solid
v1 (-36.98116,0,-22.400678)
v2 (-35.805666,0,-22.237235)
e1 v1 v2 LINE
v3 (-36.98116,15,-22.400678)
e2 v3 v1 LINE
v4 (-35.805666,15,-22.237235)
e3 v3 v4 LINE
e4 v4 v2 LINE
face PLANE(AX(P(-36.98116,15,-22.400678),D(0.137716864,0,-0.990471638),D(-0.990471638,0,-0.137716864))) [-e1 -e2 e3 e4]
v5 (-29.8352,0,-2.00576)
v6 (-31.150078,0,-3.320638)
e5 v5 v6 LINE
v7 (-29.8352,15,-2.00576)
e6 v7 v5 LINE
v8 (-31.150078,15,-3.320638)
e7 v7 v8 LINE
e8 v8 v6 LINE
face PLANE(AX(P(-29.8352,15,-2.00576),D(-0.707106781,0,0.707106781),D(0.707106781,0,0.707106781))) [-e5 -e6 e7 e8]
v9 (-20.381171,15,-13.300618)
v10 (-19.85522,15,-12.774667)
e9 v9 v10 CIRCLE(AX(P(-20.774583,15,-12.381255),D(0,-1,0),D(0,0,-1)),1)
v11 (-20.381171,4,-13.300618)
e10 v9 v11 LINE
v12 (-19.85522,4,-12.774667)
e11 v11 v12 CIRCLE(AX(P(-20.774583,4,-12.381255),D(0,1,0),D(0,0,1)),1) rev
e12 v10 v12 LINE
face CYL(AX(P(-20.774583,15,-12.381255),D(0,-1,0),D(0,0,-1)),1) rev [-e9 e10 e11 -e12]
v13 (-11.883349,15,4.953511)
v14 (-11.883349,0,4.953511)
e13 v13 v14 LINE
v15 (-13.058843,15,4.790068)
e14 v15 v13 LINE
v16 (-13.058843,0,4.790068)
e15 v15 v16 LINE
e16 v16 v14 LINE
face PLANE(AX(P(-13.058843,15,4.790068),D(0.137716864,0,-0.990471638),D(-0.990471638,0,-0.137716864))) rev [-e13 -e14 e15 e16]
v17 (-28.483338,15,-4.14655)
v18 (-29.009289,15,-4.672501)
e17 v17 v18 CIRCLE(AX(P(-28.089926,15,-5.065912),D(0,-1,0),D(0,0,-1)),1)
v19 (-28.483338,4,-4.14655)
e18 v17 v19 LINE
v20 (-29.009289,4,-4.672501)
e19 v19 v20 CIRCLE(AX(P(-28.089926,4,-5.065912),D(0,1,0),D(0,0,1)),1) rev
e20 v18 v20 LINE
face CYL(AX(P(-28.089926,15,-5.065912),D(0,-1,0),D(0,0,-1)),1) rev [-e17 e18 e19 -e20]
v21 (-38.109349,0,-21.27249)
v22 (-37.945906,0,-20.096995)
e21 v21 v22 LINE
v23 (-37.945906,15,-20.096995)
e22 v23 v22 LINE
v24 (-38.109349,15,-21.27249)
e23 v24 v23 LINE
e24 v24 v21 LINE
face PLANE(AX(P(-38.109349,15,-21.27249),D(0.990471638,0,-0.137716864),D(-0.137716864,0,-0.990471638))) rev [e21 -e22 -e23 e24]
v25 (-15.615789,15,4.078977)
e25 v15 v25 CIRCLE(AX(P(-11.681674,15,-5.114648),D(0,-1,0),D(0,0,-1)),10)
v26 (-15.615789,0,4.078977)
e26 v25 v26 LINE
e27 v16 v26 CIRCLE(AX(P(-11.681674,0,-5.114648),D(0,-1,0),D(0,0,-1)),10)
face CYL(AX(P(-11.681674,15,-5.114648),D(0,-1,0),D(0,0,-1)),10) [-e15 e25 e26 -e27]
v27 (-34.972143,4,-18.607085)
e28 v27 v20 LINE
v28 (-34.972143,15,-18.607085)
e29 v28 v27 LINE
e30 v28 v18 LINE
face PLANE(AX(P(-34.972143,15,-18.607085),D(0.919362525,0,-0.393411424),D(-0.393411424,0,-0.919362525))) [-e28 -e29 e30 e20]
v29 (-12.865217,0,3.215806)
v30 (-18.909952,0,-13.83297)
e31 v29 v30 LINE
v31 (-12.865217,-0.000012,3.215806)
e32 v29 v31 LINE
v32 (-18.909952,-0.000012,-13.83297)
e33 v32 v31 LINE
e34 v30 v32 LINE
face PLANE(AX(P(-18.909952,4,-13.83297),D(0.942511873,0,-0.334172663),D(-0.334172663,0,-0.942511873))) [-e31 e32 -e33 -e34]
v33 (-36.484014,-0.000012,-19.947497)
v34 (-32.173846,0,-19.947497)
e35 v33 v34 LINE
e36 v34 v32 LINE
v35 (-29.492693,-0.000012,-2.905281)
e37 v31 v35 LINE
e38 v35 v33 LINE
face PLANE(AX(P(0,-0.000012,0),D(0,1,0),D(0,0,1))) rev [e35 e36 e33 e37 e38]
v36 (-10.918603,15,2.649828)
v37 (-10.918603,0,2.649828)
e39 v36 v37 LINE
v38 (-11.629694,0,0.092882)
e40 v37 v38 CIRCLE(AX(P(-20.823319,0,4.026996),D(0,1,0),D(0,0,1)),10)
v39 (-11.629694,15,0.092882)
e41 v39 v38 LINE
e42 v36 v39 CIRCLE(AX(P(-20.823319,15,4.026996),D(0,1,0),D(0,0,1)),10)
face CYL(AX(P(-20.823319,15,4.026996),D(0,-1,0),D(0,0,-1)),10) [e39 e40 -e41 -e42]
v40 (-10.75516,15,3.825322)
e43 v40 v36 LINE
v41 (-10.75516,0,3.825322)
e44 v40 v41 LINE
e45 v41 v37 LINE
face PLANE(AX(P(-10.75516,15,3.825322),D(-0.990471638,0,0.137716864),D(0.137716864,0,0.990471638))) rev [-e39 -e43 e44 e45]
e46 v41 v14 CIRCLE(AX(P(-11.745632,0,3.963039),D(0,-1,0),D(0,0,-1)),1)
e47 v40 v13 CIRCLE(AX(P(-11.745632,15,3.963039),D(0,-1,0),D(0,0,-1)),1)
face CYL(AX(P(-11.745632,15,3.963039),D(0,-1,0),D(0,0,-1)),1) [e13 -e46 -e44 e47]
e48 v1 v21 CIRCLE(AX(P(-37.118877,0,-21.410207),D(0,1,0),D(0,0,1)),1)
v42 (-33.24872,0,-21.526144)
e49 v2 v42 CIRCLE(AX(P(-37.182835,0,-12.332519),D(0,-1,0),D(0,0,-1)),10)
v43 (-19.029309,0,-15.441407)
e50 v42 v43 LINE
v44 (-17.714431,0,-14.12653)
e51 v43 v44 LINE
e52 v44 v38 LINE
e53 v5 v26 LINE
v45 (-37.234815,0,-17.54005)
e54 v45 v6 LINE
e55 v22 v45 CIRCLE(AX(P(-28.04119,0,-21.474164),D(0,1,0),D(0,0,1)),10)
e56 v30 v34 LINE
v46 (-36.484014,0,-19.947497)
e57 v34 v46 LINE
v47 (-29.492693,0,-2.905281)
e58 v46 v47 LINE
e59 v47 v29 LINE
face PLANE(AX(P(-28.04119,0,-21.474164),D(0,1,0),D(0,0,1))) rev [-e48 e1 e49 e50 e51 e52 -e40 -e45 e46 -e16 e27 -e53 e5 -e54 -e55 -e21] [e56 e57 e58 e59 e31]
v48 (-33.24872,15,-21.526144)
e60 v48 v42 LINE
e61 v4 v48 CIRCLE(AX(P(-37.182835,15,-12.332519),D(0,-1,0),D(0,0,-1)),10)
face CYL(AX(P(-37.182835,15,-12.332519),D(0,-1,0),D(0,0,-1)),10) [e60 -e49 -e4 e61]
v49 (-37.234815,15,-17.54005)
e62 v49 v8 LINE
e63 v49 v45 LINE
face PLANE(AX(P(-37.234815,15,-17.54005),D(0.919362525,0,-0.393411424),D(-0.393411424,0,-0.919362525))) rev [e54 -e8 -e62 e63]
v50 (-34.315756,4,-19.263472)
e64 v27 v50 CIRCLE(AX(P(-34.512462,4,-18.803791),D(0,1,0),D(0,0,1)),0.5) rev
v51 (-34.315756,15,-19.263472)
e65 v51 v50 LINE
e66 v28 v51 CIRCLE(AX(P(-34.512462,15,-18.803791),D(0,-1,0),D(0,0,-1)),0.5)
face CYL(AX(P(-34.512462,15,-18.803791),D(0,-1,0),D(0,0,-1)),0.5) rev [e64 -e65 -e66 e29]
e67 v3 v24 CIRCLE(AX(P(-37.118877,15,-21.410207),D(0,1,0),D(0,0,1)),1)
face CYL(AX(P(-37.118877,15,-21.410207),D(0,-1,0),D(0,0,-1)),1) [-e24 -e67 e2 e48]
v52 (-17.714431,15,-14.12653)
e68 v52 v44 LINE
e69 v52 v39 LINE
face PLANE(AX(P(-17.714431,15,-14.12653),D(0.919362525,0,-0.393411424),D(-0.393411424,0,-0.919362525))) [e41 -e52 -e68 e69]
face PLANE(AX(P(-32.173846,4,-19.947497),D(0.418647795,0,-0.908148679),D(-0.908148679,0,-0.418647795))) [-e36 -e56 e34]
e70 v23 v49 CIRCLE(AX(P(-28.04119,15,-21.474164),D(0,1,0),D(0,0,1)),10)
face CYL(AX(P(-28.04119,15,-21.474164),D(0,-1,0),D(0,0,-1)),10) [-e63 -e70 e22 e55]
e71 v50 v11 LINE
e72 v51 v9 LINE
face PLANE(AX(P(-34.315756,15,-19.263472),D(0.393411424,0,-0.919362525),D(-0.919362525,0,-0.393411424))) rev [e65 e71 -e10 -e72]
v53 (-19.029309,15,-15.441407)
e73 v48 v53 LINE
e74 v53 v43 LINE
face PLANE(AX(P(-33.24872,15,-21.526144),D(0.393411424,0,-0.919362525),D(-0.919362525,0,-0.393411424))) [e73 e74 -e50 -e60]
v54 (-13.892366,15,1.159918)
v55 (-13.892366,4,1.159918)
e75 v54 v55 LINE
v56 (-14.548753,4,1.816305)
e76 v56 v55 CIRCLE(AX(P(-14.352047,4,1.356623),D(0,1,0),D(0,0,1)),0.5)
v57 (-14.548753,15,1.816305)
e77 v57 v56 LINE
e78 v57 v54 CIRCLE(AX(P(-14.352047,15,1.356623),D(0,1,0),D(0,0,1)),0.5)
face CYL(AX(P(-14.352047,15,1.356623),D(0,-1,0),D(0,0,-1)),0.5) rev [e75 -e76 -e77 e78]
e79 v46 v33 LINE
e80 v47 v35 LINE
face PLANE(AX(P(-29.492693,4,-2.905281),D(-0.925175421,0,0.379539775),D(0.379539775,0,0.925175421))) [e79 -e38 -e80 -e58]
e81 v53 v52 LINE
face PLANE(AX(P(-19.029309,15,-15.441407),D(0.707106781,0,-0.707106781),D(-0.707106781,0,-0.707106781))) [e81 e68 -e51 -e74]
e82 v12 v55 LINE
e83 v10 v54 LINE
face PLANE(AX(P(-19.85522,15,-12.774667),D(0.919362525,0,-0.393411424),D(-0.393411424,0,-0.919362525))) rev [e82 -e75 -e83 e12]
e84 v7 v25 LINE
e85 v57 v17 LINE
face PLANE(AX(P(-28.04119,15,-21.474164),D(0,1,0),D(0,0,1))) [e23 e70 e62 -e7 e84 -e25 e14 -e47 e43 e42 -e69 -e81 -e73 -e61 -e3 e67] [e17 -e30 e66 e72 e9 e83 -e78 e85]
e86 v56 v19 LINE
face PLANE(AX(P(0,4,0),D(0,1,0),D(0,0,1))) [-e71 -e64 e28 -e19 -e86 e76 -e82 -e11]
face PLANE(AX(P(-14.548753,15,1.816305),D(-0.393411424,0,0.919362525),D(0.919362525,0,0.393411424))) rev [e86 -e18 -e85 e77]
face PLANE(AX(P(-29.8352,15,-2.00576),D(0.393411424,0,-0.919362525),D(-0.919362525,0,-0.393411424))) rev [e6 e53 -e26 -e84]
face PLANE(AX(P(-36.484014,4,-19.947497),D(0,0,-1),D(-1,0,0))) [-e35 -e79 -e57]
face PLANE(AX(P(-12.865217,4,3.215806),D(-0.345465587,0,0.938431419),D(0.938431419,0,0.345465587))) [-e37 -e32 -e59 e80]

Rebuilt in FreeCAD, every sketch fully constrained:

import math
import FreeCAD as App
import Part
import Sketcher

doc = App.newDocument("Part")
params = doc.addObject("Spreadsheet::Sheet", "Params")
for row, (alias, value) in enumerate([
    ("sketch1_radius", "10 mm"),
    ("sketch1_radius2", "1 mm"),
    ("sketch1_radius3", "10 mm"),
    ("sketch1_radius4", "10 mm"),
    ("sketch1_radius5", "1 mm"),
    ("pad1_length", "15 mm"),
    ("pad2_length", "4.000012 mm"),
], start=1):
    params.set(f"A{row}", alias)
    params.set(f"B{row}", "=" + value)
    params.setAlias(f"B{row}", alias)

body = doc.addObject("PartDesign::Body", "Body")

sketch1 = body.newObject("Sketcher::SketchObject", "Sketch")
sketch1.AttachmentSupport = (doc.getObject("XZ_Plane"), [""])
sketch1.MapMode = "FlatFace"
sketch1.addGeometry(Part.LineSegment(App.Vector(-19.029309, -15.441407, 0), App.Vector(-33.24872, -21.526144, 0)), False)
sketch1.addGeometry(Part.ArcOfCircle(Part.Circle(App.Vector(-37.182835, -12.332519, 0), App.Vector(0, 0, 1), 10), math.radians(-82.084248), math.radians(-66.833065)), False)
sketch1.addGeometry(Part.LineSegment(App.Vector(-35.805666, -22.237235, 0), App.Vector(-36.98116, -22.400678, 0)), False)
sketch1.addGeometry(Part.ArcOfCircle(Part.Circle(App.Vector(-37.118877, -21.410207, 0), App.Vector(0, 0, 1), 1), math.radians(172.084248), math.radians(277.915752)), False)
sketch1.addGeometry(Part.LineSegment(App.Vector(-38.109349, -21.27249, 0), App.Vector(-37.945906, -20.096995, 0)), False)
sketch1.addGeometry(Part.ArcOfCircle(Part.Circle(App.Vector(-28.04119, -21.474164, 0), App.Vector(0, 0, 1), 10), math.radians(156.833065), math.radians(172.084248)), False)
sketch1.addGeometry(Part.LineSegment(App.Vector(-37.234815, -17.54005, 0), App.Vector(-31.150078, -3.320638, 0)), False)
sketch1.addGeometry(Part.LineSegment(App.Vector(-31.150078, -3.320638, 0), App.Vector(-29.8352, -2.00576, 0)), False)
sketch1.addGeometry(Part.LineSegment(App.Vector(-29.8352, -2.00576, 0), App.Vector(-15.615789, 4.078977, 0)), False)
sketch1.addGeometry(Part.ArcOfCircle(Part.Circle(App.Vector(-11.681674, -5.114648, 0), App.Vector(0, 0, 1), 10), math.radians(97.915752), math.radians(113.166935)), False)
sketch1.addGeometry(Part.LineSegment(App.Vector(-13.058843, 4.790068, 0), App.Vector(-11.883349, 4.953511, 0)), False)
sketch1.addGeometry(Part.ArcOfCircle(Part.Circle(App.Vector(-11.745632, 3.963039, 0), App.Vector(0, 0, 1), 1), math.radians(-7.915753), math.radians(97.915753)), False)
sketch1.addGeometry(Part.LineSegment(App.Vector(-10.75516, 3.825322, 0), App.Vector(-10.918603, 2.649828, 0)), False)
sketch1.addGeometry(Part.ArcOfCircle(Part.Circle(App.Vector(-20.823319, 4.026996, 0), App.Vector(0, 0, 1), 10), math.radians(-23.166935), math.radians(-7.915752)), False)
sketch1.addGeometry(Part.LineSegment(App.Vector(-11.629694, 0.092882, 0), App.Vector(-17.714431, -14.12653, 0)), False)
sketch1.addGeometry(Part.LineSegment(App.Vector(-17.714431, -14.12653, 0), App.Vector(-19.029309, -15.441407, 0)), False)
sketch1.addGeometry(Part.ArcOfCircle(Part.Circle(App.Vector(-34.512462, -18.803791, 0), App.Vector(0, 0, 1), 0.5), math.radians(156.833065), math.radians(293.166935)), False)
sketch1.addGeometry(Part.LineSegment(App.Vector(-34.315756, -19.263472, 0), App.Vector(-20.381171, -13.300618, 0)), False)
sketch1.addGeometry(Part.ArcOfCircle(Part.Circle(App.Vector(-20.774583, -12.381255, 0), App.Vector(0, 0, 1), 1), math.radians(-66.833065), math.radians(-23.166935)), False)
sketch1.addGeometry(Part.LineSegment(App.Vector(-19.85522, -12.774667, 0), App.Vector(-13.892366, 1.159918, 0)), False)
sketch1.addGeometry(Part.ArcOfCircle(Part.Circle(App.Vector(-14.352047, 1.356623, 0), App.Vector(0, 0, 1), 0.5), math.radians(-23.166935), math.radians(113.166935)), False)
sketch1.addGeometry(Part.LineSegment(App.Vector(-14.548753, 1.816305, 0), App.Vector(-28.483338, -4.14655, 0)), False)
sketch1.addGeometry(Part.ArcOfCircle(Part.Circle(App.Vector(-28.089926, -5.065912, 0), App.Vector(0, 0, 1), 1), math.radians(113.166935), math.radians(156.833065)), False)
sketch1.addGeometry(Part.LineSegment(App.Vector(-29.009289, -4.672501, 0), App.Vector(-34.972143, -18.607085, 0)), False)
sketch1.addConstraint(Sketcher.Constraint("Coincident", 0, 2, 1, 2))
sketch1.addConstraint(Sketcher.Constraint("Coincident", 1, 1, 2, 1))
sketch1.addConstraint(Sketcher.Constraint("Coincident", 2, 2, 3, 2))
sketch1.addConstraint(Sketcher.Constraint("Coincident", 3, 1, 4, 1))
sketch1.addConstraint(Sketcher.Constraint("Coincident", 4, 2, 5, 2))
sketch1.addConstraint(Sketcher.Constraint("Coincident", 5, 1, 6, 1))
sketch1.addConstraint(Sketcher.Constraint("Coincident", 6, 2, 7, 1))
sketch1.addConstraint(Sketcher.Constraint("Coincident", 7, 2, 8, 1))
sketch1.addConstraint(Sketcher.Constraint("Coincident", 8, 2, 9, 2))
sketch1.addConstraint(Sketcher.Constraint("Coincident", 9, 1, 10, 1))
sketch1.addConstraint(Sketcher.Constraint("Coincident", 10, 2, 11, 2))
sketch1.addConstraint(Sketcher.Constraint("Coincident", 11, 1, 12, 1))
sketch1.addConstraint(Sketcher.Constraint("Coincident", 12, 2, 13, 2))
sketch1.addConstraint(Sketcher.Constraint("Coincident", 13, 1, 14, 1))
sketch1.addConstraint(Sketcher.Constraint("Coincident", 14, 2, 15, 1))
sketch1.addConstraint(Sketcher.Constraint("Coincident", 15, 2, 0, 1))
sketch1.addConstraint(Sketcher.Constraint("Coincident", 16, 2, 17, 1))
sketch1.addConstraint(Sketcher.Constraint("Coincident", 17, 2, 18, 1))
sketch1.addConstraint(Sketcher.Constraint("Coincident", 18, 2, 19, 1))
sketch1.addConstraint(Sketcher.Constraint("Coincident", 19, 2, 20, 1))
sketch1.addConstraint(Sketcher.Constraint("Coincident", 20, 2, 21, 1))
sketch1.addConstraint(Sketcher.Constraint("Coincident", 21, 2, 22, 1))
sketch1.addConstraint(Sketcher.Constraint("Coincident", 22, 2, 23, 1))
sketch1.addConstraint(Sketcher.Constraint("Coincident", 23, 2, 16, 1))
sketch1.addConstraint(Sketcher.Constraint("Radius", 1, 10.0))
sketch1.addConstraint(Sketcher.Constraint("Radius", 3, 1.0))
sketch1.addConstraint(Sketcher.Constraint("Radius", 5, 10.0))
sketch1.addConstraint(Sketcher.Constraint("Radius", 9, 10.0))
sketch1.addConstraint(Sketcher.Constraint("Radius", 11, 1.0))
sketch1.addConstraint(Sketcher.Constraint("Radius", 13, 10.0))
sketch1.addConstraint(Sketcher.Constraint("Radius", 18, 1.0))
sketch1.addConstraint(Sketcher.Constraint("Radius", 22, 1.0))
sketch1.addConstraint(Sketcher.Constraint("Radius", 16, 0.5))
sketch1.addConstraint(Sketcher.Constraint("Radius", 20, 0.5))
sketch1.addConstraint(Sketcher.Constraint("Distance", 0, 15.466599))
sketch1.addConstraint(Sketcher.Constraint("Distance", 6, 15.466599))
sketch1.addConstraint(Sketcher.Constraint("Distance", 8, 15.466599))
sketch1.addConstraint(Sketcher.Constraint("Distance", 14, 15.466599))
sketch1.addConstraint(Sketcher.Constraint("DistanceX", 7, 2, -1, 1, 29.8352))
sketch1.addConstraint(Sketcher.Constraint("DistanceY", 22, 2, -1, 1, 4.672501))
sketch1.addConstraint(Sketcher.Constraint("DistanceX", 2, 2, 16, 3, 2.468699))
sketch1.addConstraint(Sketcher.Constraint("DistanceY", 3, 1, 16, 3, 2.468699))
sketch1.addConstraint(Sketcher.Constraint("DistanceX", 20, 3, 10, 2, 2.468699))
sketch1.addConstraint(Sketcher.Constraint("DistanceY", 20, 3, 11, 1, 2.468699))
sketch1.addConstraint(Sketcher.Constraint("Distance", 17, 15.15679))
sketch1.addConstraint(Sketcher.Constraint("Distance", 19, 15.15679))
sketch1.addConstraint(Sketcher.Constraint("Distance", 21, 15.15679))
sketch1.addConstraint(Sketcher.Constraint("Distance", 23, 15.15679))
sketch1.addConstraint(Sketcher.Constraint("DistanceY", 1, 3, -1, 1, 12.332519))
sketch1.addConstraint(Sketcher.Constraint("DistanceX", 5, 3, -1, 1, 28.04119))
sketch1.addConstraint(Sketcher.Constraint("DistanceY", 9, 3, -1, 1, 5.114648))
sketch1.addConstraint(Sketcher.Constraint("DistanceX", 11, 3, -1, 1, 11.745632))
sketch1.addConstraint(Sketcher.Constraint("DistanceY", -1, 1, 11, 3, 3.963039))
sketch1.addConstraint(Sketcher.Constraint("DistanceX", 13, 3, -1, 1, 20.823319))
sketch1.addConstraint(Sketcher.Constraint("DistanceX", 16, 3, -1, 1, 34.512462))
sketch1.addConstraint(Sketcher.Constraint("DistanceY", 16, 3, -1, 1, 18.803791))
sketch1.addConstraint(Sketcher.Constraint("DistanceX", 0, 2, -1, 1, 33.24872))
sketch1.addConstraint(Sketcher.Constraint("DistanceY", 2, 2, -1, 1, 22.400678))
sketch1.addConstraint(Sketcher.Constraint("DistanceX", 3, 1, -1, 1, 38.109349))
sketch1.addConstraint(Sketcher.Constraint("DistanceY", 5, 1, -1, 1, 17.54005))
sketch1.addConstraint(Sketcher.Constraint("DistanceX", 6, 2, -1, 1, 31.150078))
sketch1.addConstraint(Sketcher.Constraint("DistanceY", 7, 2, -1, 1, 2.00576))
sketch1.addConstraint(Sketcher.Constraint("DistanceX", 8, 2, -1, 1, 15.615789))
sketch1.addConstraint(Sketcher.Constraint("DistanceY", -1, 1, 9, 1, 4.790068))
sketch1.addConstraint(Sketcher.Constraint("DistanceX", 10, 2, -1, 1, 11.883349))
sketch1.addConstraint(Sketcher.Constraint("DistanceX", 11, 1, -1, 1, 10.75516))
sketch1.addConstraint(Sketcher.Constraint("DistanceX", 14, 2, -1, 1, 17.714431))
sketch1.addConstraint(Sketcher.Constraint("DistanceY", 14, 2, -1, 1, 14.12653))
sketch1.addConstraint(Sketcher.Constraint("DistanceX", 15, 2, -1, 1, 19.029309))
sketch1.addConstraint(Sketcher.Constraint("DistanceX", 17, 2, -1, 1, 20.381171))
sketch1.addConstraint(Sketcher.Constraint("DistanceX", 18, 2, -1, 1, 19.85522))
sketch1.addConstraint(Sketcher.Constraint("DistanceY", 21, 2, -1, 1, 4.14655))
sketch1.addConstraint(Sketcher.Constraint("DistanceX", 22, 2, -1, 1, 29.009289))
sketch1.addConstraint(Sketcher.Constraint("DistanceX", 1, 3, 9, 3, 25.50116))
sketch1.addConstraint(Sketcher.Constraint("DistanceY", 5, 3, 13, 3, 25.50116))
sketch1.addConstraint(Sketcher.Constraint("DistanceX", 18, 3, 9, 3, 9.092909))
sketch1.addConstraint(Sketcher.Constraint("DistanceY", 5, 3, 18, 3, 9.092909))
sketch1.addConstraint(Sketcher.Constraint("DistanceY", 18, 3, 20, 3, 13.737879))
sketch1.addConstraint(Sketcher.Constraint("DistanceX", 1, 3, 22, 3, 9.092909))
sketch1.addConstraint(Sketcher.Constraint("DistanceX", 3, 3, 1, 1, 1.313211))
sketch1.addConstraint(Sketcher.Constraint("DistanceX", 4, 2, 3, 3, 0.827029))
sketch1.addConstraint(Sketcher.Constraint("DistanceX", 11, 3, 12, 2, 0.827029))
sketch1.setExpression("Constraints[24]", "Params.sketch1_radius")
sketch1.setExpression("Constraints[25]", "Params.sketch1_radius2")
sketch1.setExpression("Constraints[26]", "Params.sketch1_radius3")
sketch1.setExpression("Constraints[27]", "Params.sketch1_radius4")
sketch1.setExpression("Constraints[28]", "Params.sketch1_radius5")
pad1 = body.newObject("PartDesign::Pad", "Pad")
pad1.Profile = sketch1
pad1.setExpression("Length", "Params.pad1_length")
pad1.Reversed = True

sketch2 = body.newObject("Sketcher::SketchObject", "Sketch001")
sketch2.AttachmentSupport = (doc.getObject("XZ_Plane"), [""])
sketch2.MapMode = "FlatFace"
sketch2.AttachmentOffset = App.Placement(App.Vector(0, 0, -4), App.Rotation())
sketch2.addGeometry(Part.LineSegment(App.Vector(-12.9, 3.2, 0), App.Vector(-29.5, -2.9, 0)), False)
sketch2.addGeometry(Part.LineSegment(App.Vector(-29.5, -2.9, 0), App.Vector(-36.5, -19.9, 0)), False)
sketch2.addGeometry(Part.LineSegment(App.Vector(-36.5, -19.9, 0), App.Vector(-32.2, -19.9, 0)), False)
sketch2.addGeometry(Part.LineSegment(App.Vector(-32.2, -19.9, 0), App.Vector(-18.9, -13.8, 0)), False)
sketch2.addGeometry(Part.LineSegment(App.Vector(-18.9, -13.8, 0), App.Vector(-12.9, 3.2, 0)), False)
sketch2.addConstraint(Sketcher.Constraint("Coincident", 0, 2, 1, 1))
sketch2.addConstraint(Sketcher.Constraint("Coincident", 1, 2, 2, 1))
sketch2.addConstraint(Sketcher.Constraint("Coincident", 2, 2, 3, 1))
sketch2.addConstraint(Sketcher.Constraint("Coincident", 3, 2, 4, 1))
sketch2.addConstraint(Sketcher.Constraint("Coincident", 4, 2, 0, 1))
sketch2.addConstraint(Sketcher.Constraint("Horizontal", 2))
sketch2.addConstraint(Sketcher.Constraint("Distance", 0, 17.718371))
sketch2.addConstraint(Sketcher.Constraint("Distance", 3, 14.605422))
sketch2.addConstraint(Sketcher.Constraint("Distance", 4, 18.088659))
sketch2.addConstraint(Sketcher.Constraint("DistanceX", 2, 1, 2, 2, 4.310168))
sketch2.addConstraint(Sketcher.Constraint("DistanceY", 0, 2, -1, 1, 2.905281))
sketch2.addConstraint(Sketcher.Constraint("DistanceY", 3, 2, -1, 1, 13.83297))
sketch2.addConstraint(Sketcher.Constraint("DistanceX", 1, 2, 0, 2, 6.991322))
sketch2.addConstraint(Sketcher.Constraint("DistanceX", 0, 2, 3, 2, 10.582741))
sketch2.addConstraint(Sketcher.Constraint("DistanceX", 0, 2, -1, 1, 29.492693))
pad2 = body.newObject("PartDesign::Pad", "Pad001")
pad2.Profile = sketch2
pad2.setExpression("Length", "Params.pad2_length")

doc.recompute()
